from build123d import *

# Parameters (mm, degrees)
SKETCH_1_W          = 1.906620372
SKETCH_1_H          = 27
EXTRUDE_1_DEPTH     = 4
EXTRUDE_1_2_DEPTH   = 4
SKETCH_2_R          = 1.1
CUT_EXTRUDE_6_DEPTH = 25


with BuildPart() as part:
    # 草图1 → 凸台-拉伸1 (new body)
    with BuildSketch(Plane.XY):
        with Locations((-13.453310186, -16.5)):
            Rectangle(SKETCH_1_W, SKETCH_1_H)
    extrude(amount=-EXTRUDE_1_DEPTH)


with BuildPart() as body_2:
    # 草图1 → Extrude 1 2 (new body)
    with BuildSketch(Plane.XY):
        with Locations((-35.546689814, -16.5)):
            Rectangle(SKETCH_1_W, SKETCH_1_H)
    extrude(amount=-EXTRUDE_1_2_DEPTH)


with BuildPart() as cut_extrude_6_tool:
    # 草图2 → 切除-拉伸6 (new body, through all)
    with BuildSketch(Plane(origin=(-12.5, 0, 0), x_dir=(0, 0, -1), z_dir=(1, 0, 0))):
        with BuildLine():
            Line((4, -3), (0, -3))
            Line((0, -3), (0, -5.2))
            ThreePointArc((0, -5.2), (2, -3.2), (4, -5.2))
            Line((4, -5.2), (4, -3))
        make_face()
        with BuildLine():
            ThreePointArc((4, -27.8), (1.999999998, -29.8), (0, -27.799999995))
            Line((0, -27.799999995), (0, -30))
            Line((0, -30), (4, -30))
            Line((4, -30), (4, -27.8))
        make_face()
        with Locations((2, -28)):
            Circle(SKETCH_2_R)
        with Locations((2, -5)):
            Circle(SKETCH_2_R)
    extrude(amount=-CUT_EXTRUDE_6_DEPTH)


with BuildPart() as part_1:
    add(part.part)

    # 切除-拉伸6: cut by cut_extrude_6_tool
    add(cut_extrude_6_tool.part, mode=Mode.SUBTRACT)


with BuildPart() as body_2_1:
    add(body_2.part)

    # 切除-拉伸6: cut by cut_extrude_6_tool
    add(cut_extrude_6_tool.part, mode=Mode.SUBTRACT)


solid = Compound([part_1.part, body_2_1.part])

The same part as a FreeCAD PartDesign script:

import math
import FreeCAD as App
import Part
import Sketcher
from FreeCAD import Vector
Q = App.Units.Quantity


def add_polygon(sketch, points):
    """Adds a closed chain of lines whose ends are joined by coincident constraints."""
    first, n = sketch.GeometryCount, len(points)
    for a, b in zip(points, points[1:] + points[:1]):
        sketch.addGeometry(Part.LineSegment(App.Vector(*a, 0), App.Vector(*b, 0)), False)
    for i in range(n):
        sketch.addConstraint(Sketcher.Constraint("Coincident", first + i, 2, first + (i + 1) % n, 1))

doc = App.newDocument("Part")
body = doc.addObject("PartDesign::Body", "Body")

# Sketch on XY plane
sketch1 = body.newObject("Sketcher::SketchObject", "Sketch")
sketch1.AttachmentSupport = (doc.getObject("XY_Plane"), [""])
sketch1.MapMode = "FlatFace"
add_polygon(sketch1, [(-14.4, -3), (-14.4, -30), (-12.5, -30), (-12.5, -3)])  # lines 0-3
sketch1.addConstraint([
    Sketcher.Constraint("Vertical", 0),
    Sketcher.Constraint("Horizontal", 1),
    Sketcher.Constraint("Vertical", 2),
    Sketcher.Constraint("Horizontal", 3),
    Sketcher.Constraint("DistanceY", 0, 2, 0, 1, Q("27 mm")),
    Sketcher.Constraint("DistanceY", 0, 2, -1, 1, Q("30 mm")),
    Sketcher.Constraint("DistanceX", 1, 2, -1, 1, Q("12.5 mm")),
    Sketcher.Constraint("DistanceX", 1, 1, 1, 2, Q("1.90662 mm")),
])
pad1 = body.newObject("PartDesign::Pad", "Pad")
pad1.Profile = sketch1
pad1.Length = 4
pad1.Reversed = True
body2 = doc.addObject("PartDesign::Body", "Body001")

# Sketch on XY plane
sketch2 = body2.newObject("Sketcher::SketchObject", "Sketch001")
sketch2.AttachmentSupport = (doc.getObject("XY_Plane001"), [""])
sketch2.MapMode = "FlatFace"
add_polygon(sketch2, [(-36.5, -3), (-36.5, -30), (-34.6, -30), (-34.6, -3)])  # lines 0-3
sketch2.addConstraint([
    Sketcher.Constraint("Vertical", 0),
    Sketcher.Constraint("Horizontal", 1),
    Sketcher.Constraint("Vertical", 2),
    Sketcher.Constraint("Horizontal", 3),
    Sketcher.Constraint("DistanceY", 0, 2, 0, 1, Q("27 mm")),
    Sketcher.Constraint("DistanceY", 0, 2, -1, 1, Q("30 mm")),
    Sketcher.Constraint("DistanceX", 0, 2, -1, 1, Q("36.5 mm")),
    Sketcher.Constraint("DistanceX", 1, 1, 1, 2, Q("1.90662 mm")),
])
pad2 = body2.newObject("PartDesign::Pad", "Pad001")
pad2.Profile = sketch2
pad2.Length = 4
pad2.Reversed = True
body3 = doc.addObject("PartDesign::Body", "Body002")
body3.AllowCompound = True

# Sketch on YZ plane
sketch3 = body3.newObject("Sketcher::SketchObject", "Sketch002")
sketch3.AttachmentSupport = (doc.getObject("YZ_Plane002"), [""])
sketch3.MapMode = "FlatFace"
sketch3.AttachmentOffset = App.Placement(Vector(0, 0, -12.5), App.Rotation())
sketch3.addGeometry([
    Part.LineSegment(Vector(-3, -4, 0), Vector(-3, 0, 0)),  # 0
    Part.LineSegment(Vector(-3, 0, 0), Vector(-5.2, 0, 0)),  # 1
    Part.ArcOfCircle(Part.Circle(Vector(-5.2, -2, 0), Vector(0, 0, 1), 2), math.radians(-90), math.radians(90)),  # 2
    Part.LineSegment(Vector(-5.2, -4, 0), Vector(-3, -4, 0)),  # 3
    Part.ArcOfCircle(Part.Circle(Vector(-27.8, -2, 0), Vector(0, 0, 1), 2), math.radians(90), math.radians(270)),  # 4
    Part.LineSegment(Vector(-27.8, 0, 0), Vector(-30, 0, 0)),  # 5
    Part.LineSegment(Vector(-30, 0, 0), Vector(-30, -4, 0)),  # 6
    Part.LineSegment(Vector(-30, -4, 0), Vector(-27.8, -4, 0)),  # 7
    Part.Circle(Vector(-28, -2, 0), Vector(0, 0, 1), 1.1),  # 8
    Part.Circle(Vector(-5, -2, 0), Vector(0, 0, 1), 1.1),  # 9
], False)
sketch3.addConstraint([
    Sketcher.Constraint("Coincident", 0, 2, 1, 1),
    Sketcher.Constraint("Tangent", 1, 2, 2, 2),
    Sketcher.Constraint("Tangent", 2, 1, 3, 1),
    Sketcher.Constraint("Coincident", 3, 2, 0, 1),
    Sketcher.Constraint("Tangent", 4, 1, 5, 1),
    Sketcher.Constraint("Coincident", 5, 2, 6, 1),
    Sketcher.Constraint("Coincident", 6, 2, 7, 1),
    Sketcher.Constraint("Tangent", 7, 2, 4, 2),
    Sketcher.Constraint("Vertical", 0),
    Sketcher.Constraint("Horizontal", 1),
    Sketcher.Constraint("Horizontal", 3),
    Sketcher.Constraint("Horizontal", 5),
    Sketcher.Constraint("Vertical", 6),
    Sketcher.Constraint("Horizontal", 7),
    Sketcher.Constraint("Equal", 2, 4),
    Sketcher.Constraint("Equal", 8, 9),
    Sketcher.Constraint("PointOnObject", 0, 2, -1),
    Sketcher.Constraint("PointOnObject", 4, 1, -1),
    Sketcher.Constraint("Horizontal", 4, 3, 8, 3),
    Sketcher.Constraint("Horizontal", 8, 3, 9, 3),
    Sketcher.Constraint("Equal", 3, 5),
    Sketcher.Constraint("Radius", 2, Q("2 mm")),
    Sketcher.Constraint("Diameter", 8, Q("2.2 mm")),
    Sketcher.Constraint("DistanceX", 1, 2, 1, 1, Q("2.2 mm")),
    Sketcher.Constraint("DistanceX", 8, 3, -1, 1, Q("28 mm")),
    Sketcher.Constraint("DistanceX", 9, 3, -1, 1, Q("5 mm")),
    Sketcher.Constraint("DistanceX", 0, 2, -1, 1, Q("3 mm")),
    Sketcher.Constraint("DistanceX", 5, 2, -1, 1, Q("30 mm")),
])
pad3 = body3.newObject("PartDesign::Pad", "Pad002")
pad3.Profile = sketch3
pad3.Length = 25
pad3.Reversed = True
doc.recompute()

body4 = doc.addObject("PartDesign::Body", "Body003")
body4.BaseFeature = body3
boolean = body.newObject("PartDesign::Boolean", "Boolean")
boolean.Type = "Cut"
boolean.addObjects([body4])
doc.recompute()

boolean2 = body2.newObject("PartDesign::Boolean", "Boolean001")
boolean2.Type = "Cut"
boolean2.addObjects([body3])

doc.recompute()
